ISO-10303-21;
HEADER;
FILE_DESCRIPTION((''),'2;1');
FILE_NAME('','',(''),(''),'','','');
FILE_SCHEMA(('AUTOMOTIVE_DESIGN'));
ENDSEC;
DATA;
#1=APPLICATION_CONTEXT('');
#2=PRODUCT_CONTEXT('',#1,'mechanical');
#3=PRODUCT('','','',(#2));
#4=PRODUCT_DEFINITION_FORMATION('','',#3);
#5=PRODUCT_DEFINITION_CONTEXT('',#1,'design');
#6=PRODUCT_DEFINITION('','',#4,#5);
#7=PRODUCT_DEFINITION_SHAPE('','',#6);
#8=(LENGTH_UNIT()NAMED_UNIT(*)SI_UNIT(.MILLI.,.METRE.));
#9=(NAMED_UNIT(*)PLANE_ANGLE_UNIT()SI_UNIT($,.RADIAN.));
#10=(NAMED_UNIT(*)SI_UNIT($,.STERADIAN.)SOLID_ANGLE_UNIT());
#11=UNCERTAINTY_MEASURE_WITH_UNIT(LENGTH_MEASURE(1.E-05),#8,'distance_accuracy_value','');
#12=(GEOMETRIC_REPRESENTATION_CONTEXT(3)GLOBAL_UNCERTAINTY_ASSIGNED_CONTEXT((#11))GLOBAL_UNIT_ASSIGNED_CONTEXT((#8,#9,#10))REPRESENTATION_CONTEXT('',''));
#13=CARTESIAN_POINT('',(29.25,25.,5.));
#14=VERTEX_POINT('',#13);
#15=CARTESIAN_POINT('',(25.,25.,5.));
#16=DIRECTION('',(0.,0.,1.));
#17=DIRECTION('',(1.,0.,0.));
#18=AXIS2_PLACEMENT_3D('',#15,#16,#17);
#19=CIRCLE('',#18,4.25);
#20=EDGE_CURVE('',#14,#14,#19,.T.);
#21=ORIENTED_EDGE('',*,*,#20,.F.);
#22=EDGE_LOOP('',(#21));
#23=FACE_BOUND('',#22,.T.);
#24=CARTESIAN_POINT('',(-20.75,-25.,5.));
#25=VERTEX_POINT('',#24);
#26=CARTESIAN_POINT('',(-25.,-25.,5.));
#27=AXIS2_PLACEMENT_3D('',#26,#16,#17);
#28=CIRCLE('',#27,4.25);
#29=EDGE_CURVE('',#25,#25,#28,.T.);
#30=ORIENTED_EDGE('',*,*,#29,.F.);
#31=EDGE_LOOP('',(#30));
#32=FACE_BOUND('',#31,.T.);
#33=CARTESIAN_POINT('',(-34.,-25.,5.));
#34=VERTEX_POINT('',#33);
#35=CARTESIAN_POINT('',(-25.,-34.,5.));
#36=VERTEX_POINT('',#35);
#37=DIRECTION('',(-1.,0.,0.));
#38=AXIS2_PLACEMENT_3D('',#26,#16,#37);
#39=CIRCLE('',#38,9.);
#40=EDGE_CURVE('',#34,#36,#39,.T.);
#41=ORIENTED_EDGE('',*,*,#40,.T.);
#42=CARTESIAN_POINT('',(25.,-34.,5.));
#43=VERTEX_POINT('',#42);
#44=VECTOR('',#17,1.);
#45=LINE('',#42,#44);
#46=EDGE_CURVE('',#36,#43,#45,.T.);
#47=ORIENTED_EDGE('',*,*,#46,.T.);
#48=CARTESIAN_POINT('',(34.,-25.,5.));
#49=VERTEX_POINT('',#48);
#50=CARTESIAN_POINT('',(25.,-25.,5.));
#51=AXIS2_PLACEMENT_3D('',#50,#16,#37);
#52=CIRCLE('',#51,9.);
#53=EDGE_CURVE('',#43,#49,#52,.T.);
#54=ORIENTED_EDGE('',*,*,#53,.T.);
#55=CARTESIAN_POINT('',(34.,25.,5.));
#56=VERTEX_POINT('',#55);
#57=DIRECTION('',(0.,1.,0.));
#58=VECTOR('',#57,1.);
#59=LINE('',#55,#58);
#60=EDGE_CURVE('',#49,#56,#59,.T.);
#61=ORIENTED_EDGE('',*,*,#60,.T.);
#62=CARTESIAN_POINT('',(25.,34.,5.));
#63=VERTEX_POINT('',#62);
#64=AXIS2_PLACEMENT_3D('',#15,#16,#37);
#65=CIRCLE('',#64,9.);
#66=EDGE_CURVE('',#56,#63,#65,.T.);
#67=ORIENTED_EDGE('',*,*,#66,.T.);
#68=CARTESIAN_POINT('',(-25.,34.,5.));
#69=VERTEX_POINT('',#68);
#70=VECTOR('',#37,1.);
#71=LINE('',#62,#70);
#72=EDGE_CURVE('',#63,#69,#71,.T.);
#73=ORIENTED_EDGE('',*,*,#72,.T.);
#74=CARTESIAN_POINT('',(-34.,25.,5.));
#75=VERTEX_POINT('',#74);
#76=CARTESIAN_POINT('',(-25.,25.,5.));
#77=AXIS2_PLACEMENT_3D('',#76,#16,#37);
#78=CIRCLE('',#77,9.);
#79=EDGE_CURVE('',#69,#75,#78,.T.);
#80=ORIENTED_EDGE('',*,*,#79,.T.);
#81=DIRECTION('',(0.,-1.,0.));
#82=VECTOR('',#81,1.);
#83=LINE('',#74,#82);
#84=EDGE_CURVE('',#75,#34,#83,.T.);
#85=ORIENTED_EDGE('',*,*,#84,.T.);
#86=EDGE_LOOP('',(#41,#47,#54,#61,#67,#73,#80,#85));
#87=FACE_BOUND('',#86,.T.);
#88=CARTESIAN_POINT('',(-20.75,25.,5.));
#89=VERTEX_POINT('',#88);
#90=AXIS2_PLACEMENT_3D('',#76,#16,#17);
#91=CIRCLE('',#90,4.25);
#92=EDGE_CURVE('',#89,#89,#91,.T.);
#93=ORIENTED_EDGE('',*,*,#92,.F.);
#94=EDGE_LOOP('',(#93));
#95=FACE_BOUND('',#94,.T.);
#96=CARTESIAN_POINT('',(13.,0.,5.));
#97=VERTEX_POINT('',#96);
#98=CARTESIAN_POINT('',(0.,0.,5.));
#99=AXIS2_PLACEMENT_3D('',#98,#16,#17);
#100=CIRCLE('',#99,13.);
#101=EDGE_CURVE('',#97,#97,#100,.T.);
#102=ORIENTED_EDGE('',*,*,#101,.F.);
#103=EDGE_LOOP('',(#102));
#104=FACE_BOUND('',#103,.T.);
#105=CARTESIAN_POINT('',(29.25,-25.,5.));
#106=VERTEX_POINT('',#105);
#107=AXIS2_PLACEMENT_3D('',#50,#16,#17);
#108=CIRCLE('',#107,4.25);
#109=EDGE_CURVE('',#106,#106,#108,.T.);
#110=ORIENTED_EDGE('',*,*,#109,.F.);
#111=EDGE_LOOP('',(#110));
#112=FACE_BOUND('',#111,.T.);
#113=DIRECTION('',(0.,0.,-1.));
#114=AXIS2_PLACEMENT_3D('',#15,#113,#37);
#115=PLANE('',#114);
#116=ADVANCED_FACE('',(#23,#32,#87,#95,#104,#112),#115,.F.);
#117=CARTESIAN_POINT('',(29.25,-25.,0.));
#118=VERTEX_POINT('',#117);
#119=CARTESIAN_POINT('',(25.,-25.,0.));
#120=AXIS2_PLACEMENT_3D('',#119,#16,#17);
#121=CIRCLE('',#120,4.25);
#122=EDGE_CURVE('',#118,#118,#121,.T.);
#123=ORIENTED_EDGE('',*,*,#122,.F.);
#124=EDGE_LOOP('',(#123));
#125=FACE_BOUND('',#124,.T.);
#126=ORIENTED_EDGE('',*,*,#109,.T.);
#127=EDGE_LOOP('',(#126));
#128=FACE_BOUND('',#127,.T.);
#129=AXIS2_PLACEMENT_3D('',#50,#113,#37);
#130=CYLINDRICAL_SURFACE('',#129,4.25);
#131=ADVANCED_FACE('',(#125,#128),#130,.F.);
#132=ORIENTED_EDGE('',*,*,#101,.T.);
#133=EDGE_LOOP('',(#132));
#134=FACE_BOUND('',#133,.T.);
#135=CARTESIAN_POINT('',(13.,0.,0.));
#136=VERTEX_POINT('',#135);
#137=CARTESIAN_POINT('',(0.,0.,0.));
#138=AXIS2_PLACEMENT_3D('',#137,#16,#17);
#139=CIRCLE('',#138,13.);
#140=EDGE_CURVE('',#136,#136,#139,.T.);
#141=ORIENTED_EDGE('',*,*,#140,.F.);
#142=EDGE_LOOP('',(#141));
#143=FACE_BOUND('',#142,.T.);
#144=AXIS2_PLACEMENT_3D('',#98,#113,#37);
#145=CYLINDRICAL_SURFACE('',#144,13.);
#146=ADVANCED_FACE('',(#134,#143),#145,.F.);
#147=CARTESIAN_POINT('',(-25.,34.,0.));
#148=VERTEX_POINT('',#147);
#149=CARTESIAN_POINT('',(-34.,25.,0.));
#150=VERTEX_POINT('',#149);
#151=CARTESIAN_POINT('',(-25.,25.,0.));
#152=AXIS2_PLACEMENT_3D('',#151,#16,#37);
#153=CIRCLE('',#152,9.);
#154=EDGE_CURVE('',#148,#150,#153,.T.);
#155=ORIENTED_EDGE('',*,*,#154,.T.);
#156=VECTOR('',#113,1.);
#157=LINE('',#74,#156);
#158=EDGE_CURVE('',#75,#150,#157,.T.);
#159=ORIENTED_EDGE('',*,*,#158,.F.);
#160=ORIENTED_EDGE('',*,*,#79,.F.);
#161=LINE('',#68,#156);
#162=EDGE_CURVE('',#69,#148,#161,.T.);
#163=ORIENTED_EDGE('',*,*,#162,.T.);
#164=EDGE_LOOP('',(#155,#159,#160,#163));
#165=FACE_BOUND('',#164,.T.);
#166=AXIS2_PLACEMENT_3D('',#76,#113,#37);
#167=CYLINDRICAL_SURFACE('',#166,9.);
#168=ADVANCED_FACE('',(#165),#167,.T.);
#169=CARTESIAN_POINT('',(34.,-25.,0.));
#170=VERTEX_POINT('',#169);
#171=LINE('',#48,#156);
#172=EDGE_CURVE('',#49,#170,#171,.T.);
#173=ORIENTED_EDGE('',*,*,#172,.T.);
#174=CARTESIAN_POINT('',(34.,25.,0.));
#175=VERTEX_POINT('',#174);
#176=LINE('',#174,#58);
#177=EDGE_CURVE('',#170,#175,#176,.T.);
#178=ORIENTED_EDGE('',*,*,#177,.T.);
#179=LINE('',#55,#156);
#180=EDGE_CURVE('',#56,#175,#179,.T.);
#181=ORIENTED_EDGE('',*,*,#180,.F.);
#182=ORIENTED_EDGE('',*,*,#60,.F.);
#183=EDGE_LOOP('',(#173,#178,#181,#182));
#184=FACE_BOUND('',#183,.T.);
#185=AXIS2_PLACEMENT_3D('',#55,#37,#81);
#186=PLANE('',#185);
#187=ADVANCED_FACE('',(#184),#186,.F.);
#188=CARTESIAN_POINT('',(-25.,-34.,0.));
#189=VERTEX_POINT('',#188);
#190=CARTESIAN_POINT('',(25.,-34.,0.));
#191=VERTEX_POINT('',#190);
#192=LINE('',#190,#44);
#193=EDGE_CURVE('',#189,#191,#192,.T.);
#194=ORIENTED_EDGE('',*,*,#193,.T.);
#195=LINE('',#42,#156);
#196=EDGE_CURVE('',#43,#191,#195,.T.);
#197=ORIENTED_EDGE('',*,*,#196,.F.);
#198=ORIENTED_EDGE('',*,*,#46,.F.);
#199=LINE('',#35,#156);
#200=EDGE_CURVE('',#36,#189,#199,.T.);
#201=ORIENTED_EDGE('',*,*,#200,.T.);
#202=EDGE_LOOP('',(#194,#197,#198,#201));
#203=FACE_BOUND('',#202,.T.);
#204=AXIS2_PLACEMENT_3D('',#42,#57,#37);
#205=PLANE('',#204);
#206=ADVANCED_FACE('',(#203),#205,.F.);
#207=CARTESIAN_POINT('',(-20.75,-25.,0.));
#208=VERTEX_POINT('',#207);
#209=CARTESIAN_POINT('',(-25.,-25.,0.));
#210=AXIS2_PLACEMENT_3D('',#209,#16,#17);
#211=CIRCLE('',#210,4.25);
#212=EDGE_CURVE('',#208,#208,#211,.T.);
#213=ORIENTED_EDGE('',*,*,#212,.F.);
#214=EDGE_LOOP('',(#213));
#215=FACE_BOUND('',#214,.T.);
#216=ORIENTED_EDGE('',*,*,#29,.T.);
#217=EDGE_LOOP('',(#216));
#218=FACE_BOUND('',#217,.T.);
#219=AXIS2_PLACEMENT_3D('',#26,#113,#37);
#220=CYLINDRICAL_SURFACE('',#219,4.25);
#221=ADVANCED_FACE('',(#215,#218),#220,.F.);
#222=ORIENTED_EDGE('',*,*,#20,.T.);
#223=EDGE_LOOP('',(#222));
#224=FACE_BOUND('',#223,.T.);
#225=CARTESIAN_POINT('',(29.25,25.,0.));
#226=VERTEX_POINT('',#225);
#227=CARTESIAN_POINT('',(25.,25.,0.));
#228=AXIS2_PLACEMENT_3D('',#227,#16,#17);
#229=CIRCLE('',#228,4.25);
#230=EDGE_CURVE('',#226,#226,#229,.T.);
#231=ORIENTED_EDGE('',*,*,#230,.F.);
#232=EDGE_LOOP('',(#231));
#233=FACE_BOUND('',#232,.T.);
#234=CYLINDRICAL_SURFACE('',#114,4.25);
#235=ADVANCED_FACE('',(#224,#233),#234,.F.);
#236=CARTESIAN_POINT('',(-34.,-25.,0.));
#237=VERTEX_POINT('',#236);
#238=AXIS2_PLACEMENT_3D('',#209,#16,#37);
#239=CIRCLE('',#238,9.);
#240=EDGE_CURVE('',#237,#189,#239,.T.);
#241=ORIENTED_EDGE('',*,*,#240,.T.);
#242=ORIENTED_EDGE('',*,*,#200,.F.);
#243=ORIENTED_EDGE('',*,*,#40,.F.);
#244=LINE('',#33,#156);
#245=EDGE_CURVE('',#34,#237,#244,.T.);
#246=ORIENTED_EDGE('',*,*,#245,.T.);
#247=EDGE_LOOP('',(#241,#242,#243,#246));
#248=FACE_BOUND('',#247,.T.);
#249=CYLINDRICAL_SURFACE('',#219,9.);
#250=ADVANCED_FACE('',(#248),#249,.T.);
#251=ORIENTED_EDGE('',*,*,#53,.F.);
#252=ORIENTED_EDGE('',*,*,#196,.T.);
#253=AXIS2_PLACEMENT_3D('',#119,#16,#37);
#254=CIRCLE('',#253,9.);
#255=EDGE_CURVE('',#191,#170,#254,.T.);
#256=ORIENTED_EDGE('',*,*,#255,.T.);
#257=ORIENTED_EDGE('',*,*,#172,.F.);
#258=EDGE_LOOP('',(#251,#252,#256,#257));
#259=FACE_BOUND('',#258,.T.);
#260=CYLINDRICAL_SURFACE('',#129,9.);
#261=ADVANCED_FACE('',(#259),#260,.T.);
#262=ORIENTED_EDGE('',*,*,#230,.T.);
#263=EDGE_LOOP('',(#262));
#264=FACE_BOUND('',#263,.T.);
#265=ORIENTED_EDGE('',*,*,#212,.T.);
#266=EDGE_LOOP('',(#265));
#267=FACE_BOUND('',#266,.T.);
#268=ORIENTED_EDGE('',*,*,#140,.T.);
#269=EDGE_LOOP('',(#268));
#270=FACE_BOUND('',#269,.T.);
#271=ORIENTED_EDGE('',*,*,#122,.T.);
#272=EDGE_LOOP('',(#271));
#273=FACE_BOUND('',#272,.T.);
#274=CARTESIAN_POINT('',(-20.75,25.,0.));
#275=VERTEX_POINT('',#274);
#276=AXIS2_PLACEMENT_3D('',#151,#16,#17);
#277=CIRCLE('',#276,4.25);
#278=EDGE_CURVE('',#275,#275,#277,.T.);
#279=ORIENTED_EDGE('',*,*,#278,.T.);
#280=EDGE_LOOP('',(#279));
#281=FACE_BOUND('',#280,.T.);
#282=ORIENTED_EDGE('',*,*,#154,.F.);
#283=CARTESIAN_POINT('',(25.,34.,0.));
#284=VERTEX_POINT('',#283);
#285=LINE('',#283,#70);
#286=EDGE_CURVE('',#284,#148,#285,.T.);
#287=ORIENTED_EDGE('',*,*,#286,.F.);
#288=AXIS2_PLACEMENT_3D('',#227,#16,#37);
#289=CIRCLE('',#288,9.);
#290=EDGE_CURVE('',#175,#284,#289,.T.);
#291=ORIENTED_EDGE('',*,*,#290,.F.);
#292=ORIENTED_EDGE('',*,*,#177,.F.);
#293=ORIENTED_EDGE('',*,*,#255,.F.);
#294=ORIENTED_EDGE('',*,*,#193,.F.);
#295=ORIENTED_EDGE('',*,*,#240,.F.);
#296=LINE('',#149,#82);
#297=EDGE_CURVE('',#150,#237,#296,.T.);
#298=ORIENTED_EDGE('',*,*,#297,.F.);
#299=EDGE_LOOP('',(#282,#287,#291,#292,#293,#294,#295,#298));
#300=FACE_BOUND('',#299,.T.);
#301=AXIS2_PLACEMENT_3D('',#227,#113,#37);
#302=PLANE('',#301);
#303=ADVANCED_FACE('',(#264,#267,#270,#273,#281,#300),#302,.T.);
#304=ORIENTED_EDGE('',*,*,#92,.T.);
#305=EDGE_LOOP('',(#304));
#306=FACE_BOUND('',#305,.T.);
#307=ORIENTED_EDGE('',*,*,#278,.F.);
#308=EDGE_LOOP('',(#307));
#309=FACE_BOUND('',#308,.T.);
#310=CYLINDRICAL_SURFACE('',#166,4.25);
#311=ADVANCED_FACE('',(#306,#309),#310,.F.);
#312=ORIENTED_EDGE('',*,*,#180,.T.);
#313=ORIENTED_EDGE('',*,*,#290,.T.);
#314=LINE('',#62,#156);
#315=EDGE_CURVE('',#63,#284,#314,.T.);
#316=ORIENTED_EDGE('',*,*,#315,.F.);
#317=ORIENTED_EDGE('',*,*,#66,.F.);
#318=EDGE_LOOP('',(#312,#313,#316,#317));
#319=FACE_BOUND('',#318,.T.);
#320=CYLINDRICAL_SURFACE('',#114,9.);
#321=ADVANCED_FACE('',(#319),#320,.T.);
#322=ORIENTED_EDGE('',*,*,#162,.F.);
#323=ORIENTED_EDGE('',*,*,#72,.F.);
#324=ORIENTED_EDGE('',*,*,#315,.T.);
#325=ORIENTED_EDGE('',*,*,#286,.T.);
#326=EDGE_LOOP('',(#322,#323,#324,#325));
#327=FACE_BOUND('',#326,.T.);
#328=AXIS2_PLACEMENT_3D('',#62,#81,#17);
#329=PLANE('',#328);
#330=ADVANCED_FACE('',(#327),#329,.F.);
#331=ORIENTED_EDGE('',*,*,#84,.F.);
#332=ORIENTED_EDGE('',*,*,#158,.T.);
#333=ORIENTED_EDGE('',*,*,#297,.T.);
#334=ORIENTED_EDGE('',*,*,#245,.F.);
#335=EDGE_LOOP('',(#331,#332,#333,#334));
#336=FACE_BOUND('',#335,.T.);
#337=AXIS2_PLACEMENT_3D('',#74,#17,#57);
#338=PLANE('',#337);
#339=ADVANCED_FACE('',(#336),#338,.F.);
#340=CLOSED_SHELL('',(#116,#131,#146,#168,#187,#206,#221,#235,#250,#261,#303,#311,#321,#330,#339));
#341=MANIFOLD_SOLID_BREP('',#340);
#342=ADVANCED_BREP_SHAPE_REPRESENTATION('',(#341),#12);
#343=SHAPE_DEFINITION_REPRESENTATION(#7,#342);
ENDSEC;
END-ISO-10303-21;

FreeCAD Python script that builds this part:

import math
import FreeCAD as App
import Part
import Sketcher

V = App.Vector
Q = App.Units.Quantity

doc = App.newDocument("Part")
params = doc.addObject("Spreadsheet::Sheet", "Params")
for row, (alias, value) in enumerate([
    ("sketch1_diameter", "26 mm"),
    ("sketch1_radius", "9 mm"),
    ("sketch1_diameter2", "8.5 mm"),
    ("sketch1_width", "50 mm"),
    ("pad1_length", "5 mm"),
], start=1):
    params.set(f"A{row}", alias)
    params.set(f"B{row}", "=" + value)
    params.setAlias(f"B{row}", alias)

body = doc.addObject("PartDesign::Body", "Body")

sketch1 = doc.addObject("Sketcher::SketchObject", "Sketch")
body.addObject(sketch1)
sketch1.AttachmentSupport = (doc.XY_Plane, [""])
sketch1.MapMode = "FlatFace"
sketch1.addGeometry([
    Part.LineSegment(V(25, 34, 0), V(-25, 34, 0)),
    Part.ArcOfCircle(Part.Circle(V(-25, 25, 0), V(0, 0, 1), 9), math.radians(90), math.radians(180)),
    Part.LineSegment(V(-34, 25, 0), V(-34, -25, 0)),
    Part.ArcOfCircle(Part.Circle(V(-25, -25, 0), V(0, 0, 1), 9), math.radians(180), math.radians(270)),
    Part.LineSegment(V(-25, -34, 0), V(25, -34, 0)),
    Part.ArcOfCircle(Part.Circle(V(25, -25, 0), V(0, 0, 1), 9), math.radians(-90), math.radians(0)),
    Part.LineSegment(V(34, -25, 0), V(34, 25, 0)),
    Part.ArcOfCircle(Part.Circle(V(25, 25, 0), V(0, 0, 1), 9), math.radians(0), math.radians(90)),
    Part.Circle(V(-25, -25, 0), V(0, 0, 1), 4.2),
    Part.Circle(V(25, -25, 0), V(0, 0, 1), 4.2),
    Part.Circle(V(-25, 25, 0), V(0, 0, 1), 4.2),
    Part.Circle(V(0, 0, 0), V(0, 0, 1), 13),
    Part.Circle(V(25, 25, 0), V(0, 0, 1), 4.2),
], False)
sketch1.addConstraint([
    Sketcher.Constraint("Tangent", 0, 2, 1, 1),
    Sketcher.Constraint("Tangent", 1, 2, 2, 1),
    Sketcher.Constraint("Tangent", 2, 2, 3, 1),
    Sketcher.Constraint("Tangent", 3, 2, 4, 1),
    Sketcher.Constraint("Tangent", 4, 2, 5, 1),
    Sketcher.Constraint("Tangent", 5, 2, 6, 1),
    Sketcher.Constraint("Tangent", 6, 2, 7, 1),
    Sketcher.Constraint("Tangent", 7, 2, 0, 1),
    Sketcher.Constraint("Horizontal", 0),
    Sketcher.Constraint("Vertical", 2),
    Sketcher.Constraint("Horizontal", 4),
    Sketcher.Constraint("Vertical", 6),
    Sketcher.Constraint("Coincident", 11, 3, -1, 1),
    Sketcher.Constraint("Coincident", 8, 3, 3, 3),
    Sketcher.Constraint("Coincident", 9, 3, 5, 3),
    Sketcher.Constraint("Coincident", 10, 3, 1, 3),
    Sketcher.Constraint("Coincident", 12, 3, 7, 3),
    Sketcher.Constraint("Equal", 1, 3),
    Sketcher.Constraint("Equal", 3, 5),
    Sketcher.Constraint("Equal", 5, 7),
    Sketcher.Constraint("Equal", 8, 9),
    Sketcher.Constraint("Equal", 9, 10),
    Sketcher.Constraint("Equal", 10, 12),
    Sketcher.Constraint("Symmetric", 1, 3, 5, 3, -1, 1),
    Sketcher.Constraint("Equal", 4, 2),
    Sketcher.Constraint("Diameter", 11, Q("26 mm")),
    Sketcher.Constraint("Radius", 1, Q("9 mm")),
    Sketcher.Constraint("Diameter", 8, Q("8.5 mm")),
    Sketcher.Constraint("DistanceX", 0, 2, 0, 1, Q("50 mm")),
])
sketch1.setExpression("Constraints[25]", "Params.sketch1_diameter")
sketch1.setExpression("Constraints[26]", "Params.sketch1_radius")
sketch1.setExpression("Constraints[27]", "Params.sketch1_diameter2")
sketch1.setExpression("Constraints[28]", "Params.sketch1_width")
pad1 = doc.addObject("PartDesign::Pad", "Pad")
body.addObject(pad1)
pad1.Profile = sketch1
pad1.setExpression("Length", "Params.pad1_length")

doc.recompute()
